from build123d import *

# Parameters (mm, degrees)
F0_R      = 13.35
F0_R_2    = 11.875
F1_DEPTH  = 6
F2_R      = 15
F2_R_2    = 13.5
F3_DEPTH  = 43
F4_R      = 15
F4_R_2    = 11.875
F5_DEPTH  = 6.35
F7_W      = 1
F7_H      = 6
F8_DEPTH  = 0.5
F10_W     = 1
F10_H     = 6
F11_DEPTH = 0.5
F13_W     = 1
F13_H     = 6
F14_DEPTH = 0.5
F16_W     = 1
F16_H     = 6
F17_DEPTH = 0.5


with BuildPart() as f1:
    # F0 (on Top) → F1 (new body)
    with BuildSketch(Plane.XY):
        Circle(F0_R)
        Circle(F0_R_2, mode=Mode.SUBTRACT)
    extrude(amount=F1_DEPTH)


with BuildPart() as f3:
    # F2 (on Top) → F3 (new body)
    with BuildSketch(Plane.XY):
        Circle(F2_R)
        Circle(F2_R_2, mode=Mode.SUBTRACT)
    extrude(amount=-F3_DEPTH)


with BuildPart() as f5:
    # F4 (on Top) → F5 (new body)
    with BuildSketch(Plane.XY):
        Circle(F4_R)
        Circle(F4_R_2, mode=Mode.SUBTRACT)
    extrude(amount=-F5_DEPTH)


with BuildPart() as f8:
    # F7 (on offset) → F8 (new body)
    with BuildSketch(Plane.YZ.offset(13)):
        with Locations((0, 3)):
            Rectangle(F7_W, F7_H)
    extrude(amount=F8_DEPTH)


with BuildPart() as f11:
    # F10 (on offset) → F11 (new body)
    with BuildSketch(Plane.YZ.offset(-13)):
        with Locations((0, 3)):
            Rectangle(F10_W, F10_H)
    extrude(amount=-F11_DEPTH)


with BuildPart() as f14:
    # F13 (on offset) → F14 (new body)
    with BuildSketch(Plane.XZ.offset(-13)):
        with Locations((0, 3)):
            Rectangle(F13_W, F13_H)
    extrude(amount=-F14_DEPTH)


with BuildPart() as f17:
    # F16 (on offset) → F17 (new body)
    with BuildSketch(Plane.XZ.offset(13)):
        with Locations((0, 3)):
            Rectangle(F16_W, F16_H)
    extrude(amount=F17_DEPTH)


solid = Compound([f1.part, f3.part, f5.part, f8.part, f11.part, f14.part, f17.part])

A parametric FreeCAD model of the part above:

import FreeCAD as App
import Part
import Sketcher
from FreeCAD import Vector
Q = App.Units.Quantity

doc = App.newDocument("Part")
body = doc.addObject("PartDesign::Body", "Body")

sketch1 = body.newObject("Sketcher::SketchObject", "Sketch")
sketch1.AttachmentSupport = (doc.getObject("XY_Plane"), [""])
sketch1.MapMode = "FlatFace"
sketch1.addGeometry([
    Part.Circle(Vector(0, 0, 0), Vector(0, 0, 1), 13),
    Part.Circle(Vector(0, 0, 0), Vector(0, 0, 1), 12),
], False)
sketch1.addConstraint([
    Sketcher.Constraint("Coincident", 0, 3, -1, 1),
    Sketcher.Constraint("Coincident", 1, 3, -1, 1),
    Sketcher.Constraint("Diameter", 0, Q("26.7 mm")),
    Sketcher.Constraint("Diameter", 1, Q("23.75 mm")),
])
pad1 = body.newObject("PartDesign::Pad", "Pad")
pad1.Profile = sketch1
pad1.Length = 6
body2 = doc.addObject("PartDesign::Body", "Body001")

sketch2 = body2.newObject("Sketcher::SketchObject", "Sketch001")
sketch2.AttachmentSupport = (doc.getObject("XY_Plane001"), [""])
sketch2.MapMode = "FlatFace"
sketch2.addGeometry([
    Part.Circle(Vector(0, 0, 0), Vector(0, 0, 1), 15),
    Part.Circle(Vector(0, 0, 0), Vector(0, 0, 1), 14),
], False)
sketch2.addConstraint([
    Sketcher.Constraint("Coincident", 0, 3, -1, 1),
    Sketcher.Constraint("Coincident", 1, 3, -1, 1),
    Sketcher.Constraint("Diameter", 0, Q("30 mm")),
    Sketcher.Constraint("Diameter", 1, Q("27 mm")),
])
pad2 = body2.newObject("PartDesign::Pad", "Pad001")
pad2.Profile = sketch2
pad2.Length = 43
pad2.Reversed = True
body3 = doc.addObject("PartDesign::Body", "Body002")

sketch3 = body3.newObject("Sketcher::SketchObject", "Sketch002")
sketch3.AttachmentSupport = (doc.getObject("XY_Plane002"), [""])
sketch3.MapMode = "FlatFace"
sketch3.addGeometry([
    Part.Circle(Vector(0, 0, 0), Vector(0, 0, 1), 15),
    Part.Circle(Vector(0, 0, 0), Vector(0, 0, 1), 12),
], False)
sketch3.addConstraint([
    Sketcher.Constraint("Coincident", 0, 3, -1, 1),
    Sketcher.Constraint("Coincident", 1, 3, -1, 1),
    Sketcher.Constraint("Diameter", 0, Q("30 mm")),
    Sketcher.Constraint("Diameter", 1, Q("23.75 mm")),
])
pad3 = body3.newObject("PartDesign::Pad", "Pad002")
pad3.Profile = sketch3
pad3.Length = 6.35
pad3.Reversed = True
body4 = doc.addObject("PartDesign::Body", "Body003")

sketch4 = body4.newObject("Sketcher::SketchObject", "Sketch003")
sketch4.AttachmentSupport = (doc.getObject("YZ_Plane003"), [""])
sketch4.MapMode = "FlatFace"
sketch4.AttachmentOffset = App.Placement(Vector(0, 0, 13), App.Rotation())
sketch4.addGeometry([
    Part.LineSegment(Vector(-0.5, 6, 0), Vector(-0.5, 0, 0)),
    Part.LineSegment(Vector(-0.5, 0, 0), Vector(0.5, 0, 0)),
    Part.LineSegment(Vector(0.5, 0, 0), Vector(0.5, 6, 0)),
    Part.LineSegment(Vector(0.5, 6, 0), Vector(-0.5, 6, 0)),
], False)
sketch4.addConstraint([
    Sketcher.Constraint("Coincident", 0, 2, 1, 1),
    Sketcher.Constraint("Coincident", 1, 2, 2, 1),
    Sketcher.Constraint("Coincident", 2, 2, 3, 1),
    Sketcher.Constraint("Coincident", 3, 2, 0, 1),
    Sketcher.Constraint("Vertical", 0),
    Sketcher.Constraint("Horizontal", 1),
    Sketcher.Constraint("Vertical", 2),
    Sketcher.Constraint("Horizontal", 3),
    Sketcher.Constraint("Symmetric", 0, 2, 1, 2, -1, 1),
    Sketcher.Constraint("DistanceX", 1, 1, 1, 2, Q("1 mm")),
    Sketcher.Constraint("DistanceY", 0, 2, 0, 1, Q("6 mm")),
])
pad4 = body4.newObject("PartDesign::Pad", "Pad003")
pad4.Profile = sketch4
pad4.Length = 0.5
body5 = doc.addObject("PartDesign::Body", "Body004")

sketch5 = body5.newObject("Sketcher::SketchObject", "Sketch004")
sketch5.AttachmentSupport = (doc.getObject("YZ_Plane004"), [""])
sketch5.MapMode = "FlatFace"
sketch5.AttachmentOffset = App.Placement(Vector(0, 0, -13), App.Rotation())
sketch5.addGeometry([
    Part.LineSegment(Vector(-0.5, 6, 0), Vector(-0.5, 0, 0)),
    Part.LineSegment(Vector(-0.5, 0, 0), Vector(0.5, 0, 0)),
    Part.LineSegment(Vector(0.5, 0, 0), Vector(0.5, 6, 0)),
    Part.LineSegment(Vector(0.5, 6, 0), Vector(-0.5, 6, 0)),
], False)
sketch5.addConstraint([
    Sketcher.Constraint("Coincident", 0, 2, 1, 1),
    Sketcher.Constraint("Coincident", 1, 2, 2, 1),
    Sketcher.Constraint("Coincident", 2, 2, 3, 1),
    Sketcher.Constraint("Coincident", 3, 2, 0, 1),
    Sketcher.Constraint("Vertical", 0),
    Sketcher.Constraint("Horizontal", 1),
    Sketcher.Constraint("Vertical", 2),
    Sketcher.Constraint("Horizontal", 3),
    Sketcher.Constraint("Symmetric", 0, 2, 1, 2, -1, 1),
    Sketcher.Constraint("DistanceX", 1, 1, 1, 2, Q("1 mm")),
    Sketcher.Constraint("DistanceY", 0, 2, 0, 1, Q("6 mm")),
])
pad5 = body5.newObject("PartDesign::Pad", "Pad004")
pad5.Profile = sketch5
pad5.Length = 0.5
pad5.Reversed = True
body6 = doc.addObject("PartDesign::Body", "Body005")

sketch6 = body6.newObject("Sketcher::SketchObject", "Sketch005")
sketch6.AttachmentSupport = (doc.getObject("XZ_Plane005"), [""])
sketch6.MapMode = "FlatFace"
sketch6.AttachmentOffset = App.Placement(Vector(0, 0, -13), App.Rotation())
sketch6.addGeometry([
    Part.LineSegment(Vector(-0.5, 6, 0), Vector(-0.5, 0, 0)),
    Part.LineSegment(Vector(-0.5, 0, 0), Vector(0.5, 0, 0)),
    Part.LineSegment(Vector(0.5, 0, 0), Vector(0.5, 6, 0)),
    Part.LineSegment(Vector(0.5, 6, 0), Vector(-0.5, 6, 0)),
], False)
sketch6.addConstraint([
    Sketcher.Constraint("Coincident", 0, 2, 1, 1),
    Sketcher.Constraint("Coincident", 1, 2, 2, 1),
    Sketcher.Constraint("Coincident", 2, 2, 3, 1),
    Sketcher.Constraint("Coincident", 3, 2, 0, 1),
    Sketcher.Constraint("Vertical", 0),
    Sketcher.Constraint("Horizontal", 1),
    Sketcher.Constraint("Vertical", 2),
    Sketcher.Constraint("Horizontal", 3),
    Sketcher.Constraint("Symmetric", 0, 2, 1, 2, -1, 1),
    Sketcher.Constraint("DistanceX", 1, 1, 1, 2, Q("1 mm")),
    Sketcher.Constraint("DistanceY", 0, 2, 0, 1, Q("6 mm")),
])
pad6 = body6.newObject("PartDesign::Pad", "Pad005")
pad6.Profile = sketch6
pad6.Length = 0.5
pad6.Reversed = True
body7 = doc.addObject("PartDesign::Body", "Body006")

sketch7 = body7.newObject("Sketcher::SketchObject", "Sketch006")
sketch7.AttachmentSupport = (doc.getObject("XZ_Plane006"), [""])
sketch7.MapMode = "FlatFace"
sketch7.AttachmentOffset = App.Placement(Vector(0, 0, 13), App.Rotation())
sketch7.addGeometry([
    Part.LineSegment(Vector(-0.5, 6, 0), Vector(-0.5, 0, 0)),
    Part.LineSegment(Vector(-0.5, 0, 0), Vector(0.5, 0, 0)),
    Part.LineSegment(Vector(0.5, 0, 0), Vector(0.5, 6, 0)),
    Part.LineSegment(Vector(0.5, 6, 0), Vector(-0.5, 6, 0)),
], False)
sketch7.addConstraint([
    Sketcher.Constraint("Coincident", 0, 2, 1, 1),
    Sketcher.Constraint("Coincident", 1, 2, 2, 1),
    Sketcher.Constraint("Coincident", 2, 2, 3, 1),
    Sketcher.Constraint("Coincident", 3, 2, 0, 1),
    Sketcher.Constraint("Vertical", 0),
    Sketcher.Constraint("Horizontal", 1),
    Sketcher.Constraint("Vertical", 2),
    Sketcher.Constraint("Horizontal", 3),
    Sketcher.Constraint("Symmetric", 0, 2, 1, 2, -1, 1),
    Sketcher.Constraint("DistanceX", 1, 1, 1, 2, Q("1 mm")),
    Sketcher.Constraint("DistanceY", 0, 2, 0, 1, Q("6 mm")),
])
pad7 = body7.newObject("PartDesign::Pad", "Pad006")
pad7.Profile = sketch7
pad7.Length = 0.5

doc.recompute()
